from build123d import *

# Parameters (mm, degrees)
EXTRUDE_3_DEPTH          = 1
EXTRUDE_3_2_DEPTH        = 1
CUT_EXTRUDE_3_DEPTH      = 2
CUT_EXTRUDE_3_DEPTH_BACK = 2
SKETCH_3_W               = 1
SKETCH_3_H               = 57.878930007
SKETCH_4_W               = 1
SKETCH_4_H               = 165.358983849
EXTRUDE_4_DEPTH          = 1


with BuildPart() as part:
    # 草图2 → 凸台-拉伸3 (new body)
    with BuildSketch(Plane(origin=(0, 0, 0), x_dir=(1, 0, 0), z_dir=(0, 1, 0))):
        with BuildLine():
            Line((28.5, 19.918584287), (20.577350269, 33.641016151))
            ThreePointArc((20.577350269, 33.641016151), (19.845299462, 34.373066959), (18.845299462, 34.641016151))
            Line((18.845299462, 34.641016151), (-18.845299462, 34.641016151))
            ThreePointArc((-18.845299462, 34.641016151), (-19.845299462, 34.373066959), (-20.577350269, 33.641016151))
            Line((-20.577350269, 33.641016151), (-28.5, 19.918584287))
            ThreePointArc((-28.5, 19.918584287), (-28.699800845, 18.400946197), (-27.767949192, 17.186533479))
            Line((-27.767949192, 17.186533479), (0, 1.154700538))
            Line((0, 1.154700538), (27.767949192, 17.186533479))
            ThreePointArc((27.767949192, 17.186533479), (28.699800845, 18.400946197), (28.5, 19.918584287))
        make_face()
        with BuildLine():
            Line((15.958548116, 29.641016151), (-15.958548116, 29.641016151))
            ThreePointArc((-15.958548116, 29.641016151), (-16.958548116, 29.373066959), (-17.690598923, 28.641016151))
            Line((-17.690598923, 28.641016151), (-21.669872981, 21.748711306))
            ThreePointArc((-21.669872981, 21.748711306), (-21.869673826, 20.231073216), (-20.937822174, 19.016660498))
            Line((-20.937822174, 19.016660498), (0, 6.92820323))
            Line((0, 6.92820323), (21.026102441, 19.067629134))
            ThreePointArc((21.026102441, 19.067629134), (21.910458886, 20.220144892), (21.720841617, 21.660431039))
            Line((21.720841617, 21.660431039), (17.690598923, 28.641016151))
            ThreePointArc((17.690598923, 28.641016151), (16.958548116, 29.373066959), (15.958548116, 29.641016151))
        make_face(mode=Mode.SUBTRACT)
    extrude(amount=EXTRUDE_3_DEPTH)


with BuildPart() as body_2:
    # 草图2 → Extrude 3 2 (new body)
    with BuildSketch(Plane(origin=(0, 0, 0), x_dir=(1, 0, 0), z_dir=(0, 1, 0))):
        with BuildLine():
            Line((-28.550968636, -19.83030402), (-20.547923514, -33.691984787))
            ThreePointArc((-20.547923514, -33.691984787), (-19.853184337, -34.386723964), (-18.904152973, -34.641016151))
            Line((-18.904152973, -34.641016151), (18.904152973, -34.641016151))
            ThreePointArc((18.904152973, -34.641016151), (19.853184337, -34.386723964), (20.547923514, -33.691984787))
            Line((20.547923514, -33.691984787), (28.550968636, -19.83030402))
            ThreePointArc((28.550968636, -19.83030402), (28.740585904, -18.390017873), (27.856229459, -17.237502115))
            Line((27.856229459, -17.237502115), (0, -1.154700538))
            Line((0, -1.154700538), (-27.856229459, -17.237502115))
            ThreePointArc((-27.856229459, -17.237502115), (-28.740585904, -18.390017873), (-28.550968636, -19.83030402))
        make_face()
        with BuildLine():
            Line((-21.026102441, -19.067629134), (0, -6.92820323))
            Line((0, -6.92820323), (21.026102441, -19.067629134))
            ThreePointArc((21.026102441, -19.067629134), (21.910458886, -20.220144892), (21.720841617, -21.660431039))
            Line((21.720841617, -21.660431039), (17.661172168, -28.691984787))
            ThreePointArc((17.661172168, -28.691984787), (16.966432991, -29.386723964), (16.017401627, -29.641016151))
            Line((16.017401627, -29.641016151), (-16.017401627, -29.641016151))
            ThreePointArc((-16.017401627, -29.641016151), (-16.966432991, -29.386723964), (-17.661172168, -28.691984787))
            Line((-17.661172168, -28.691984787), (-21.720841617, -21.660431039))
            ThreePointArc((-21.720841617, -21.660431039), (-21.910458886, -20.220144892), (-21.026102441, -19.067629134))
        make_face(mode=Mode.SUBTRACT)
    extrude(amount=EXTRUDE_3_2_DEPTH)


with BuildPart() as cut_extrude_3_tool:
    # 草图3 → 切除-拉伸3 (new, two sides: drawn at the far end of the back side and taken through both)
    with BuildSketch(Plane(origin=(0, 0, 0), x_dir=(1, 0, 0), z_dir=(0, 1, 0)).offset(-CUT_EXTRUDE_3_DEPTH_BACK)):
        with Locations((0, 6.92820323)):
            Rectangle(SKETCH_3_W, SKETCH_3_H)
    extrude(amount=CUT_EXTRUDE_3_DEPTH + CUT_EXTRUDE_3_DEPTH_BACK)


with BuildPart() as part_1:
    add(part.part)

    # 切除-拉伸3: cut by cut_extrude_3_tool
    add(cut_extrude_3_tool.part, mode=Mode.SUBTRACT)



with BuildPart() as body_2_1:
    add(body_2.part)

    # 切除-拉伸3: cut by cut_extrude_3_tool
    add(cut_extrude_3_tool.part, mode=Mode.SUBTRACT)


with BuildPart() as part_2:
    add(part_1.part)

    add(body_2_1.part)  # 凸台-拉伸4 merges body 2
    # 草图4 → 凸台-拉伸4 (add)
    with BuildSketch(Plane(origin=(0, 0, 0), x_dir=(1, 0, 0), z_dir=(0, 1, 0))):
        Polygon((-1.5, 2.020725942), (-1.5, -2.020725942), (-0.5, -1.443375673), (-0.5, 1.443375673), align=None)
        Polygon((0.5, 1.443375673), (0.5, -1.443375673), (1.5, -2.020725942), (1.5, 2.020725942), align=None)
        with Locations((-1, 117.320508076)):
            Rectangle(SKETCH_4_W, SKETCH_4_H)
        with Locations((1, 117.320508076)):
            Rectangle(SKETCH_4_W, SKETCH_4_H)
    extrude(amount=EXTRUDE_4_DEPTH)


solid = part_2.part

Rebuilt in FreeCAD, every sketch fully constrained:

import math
import FreeCAD as App
import Part
import Sketcher
Q = App.Units.Quantity

doc = App.newDocument("Part")
params = doc.addObject("Spreadsheet::Sheet", "Params")
for row, (alias, value) in enumerate([
    ("sketch1_radius", "2 mm"),
    ("pad1_length", "1 mm"),
    ("pad2_length", "1 mm"),
    ("sketch3_width", "1 mm"),
    ("pad3_length", "2 mm"),
    ("pad3_length2", "2 mm"),
    ("sketch4_width", "1 mm"),
    ("pad4_length", "1 mm"),
], start=1):
    params.set(f"A{row}", alias)
    params.set(f"B{row}", "=" + value)
    params.setAlias(f"B{row}", alias)

body = doc.addObject("PartDesign::Body", "Body")

sketch1 = body.newObject("Sketcher::SketchObject", "Sketch")
sketch1.AttachmentSupport = (doc.getObject("XZ_Plane"), [""])
sketch1.MapMode = "FlatFace"
sketch1.addGeometry(Part.LineSegment(App.Vector(28.5, -19.9, 0), App.Vector(20.6, -33.6, 0)), False)
sketch1.addGeometry(Part.ArcOfCircle(Part.Circle(App.Vector(18.8, -32.6, 0), App.Vector(0, 0, 1), 2), math.radians(-90), math.radians(-30)), False)
sketch1.addGeometry(Part.LineSegment(App.Vector(18.8, -34.6, 0), App.Vector(-18.8, -34.6, 0)), False)
sketch1.addGeometry(Part.ArcOfCircle(Part.Circle(App.Vector(-18.8, -32.6, 0), App.Vector(0, 0, 1), 2), math.radians(-150), math.radians(-90)), False)
sketch1.addGeometry(Part.LineSegment(App.Vector(-20.6, -33.6, 0), App.Vector(-28.5, -19.9, 0)), False)
sketch1.addGeometry(Part.ArcOfCircle(Part.Circle(App.Vector(-26.8, -18.9, 0), App.Vector(0, 0, 1), 2), math.radians(120), math.radians(210)), False)
sketch1.addGeometry(Part.LineSegment(App.Vector(-27.8, -17.2, 0), App.Vector(0, -1.2, 0)), False)
sketch1.addGeometry(Part.LineSegment(App.Vector(0, -1.2, 0), App.Vector(27.8, -17.2, 0)), False)
sketch1.addGeometry(Part.ArcOfCircle(Part.Circle(App.Vector(26.8, -18.9, 0), App.Vector(0, 0, 1), 2), math.radians(-30), math.radians(60)), False)
sketch1.addGeometry(Part.LineSegment(App.Vector(-16, -29.6, 0), App.Vector(16, -29.6, 0)), False)
sketch1.addGeometry(Part.ArcOfCircle(Part.Circle(App.Vector(16, -27.6, 0), App.Vector(0, 0, 1), 2), math.radians(-90), math.radians(-30)), False)
sketch1.addGeometry(Part.LineSegment(App.Vector(17.7, -28.6, 0), App.Vector(21.7, -21.7, 0)), False)
sketch1.addGeometry(Part.ArcOfCircle(Part.Circle(App.Vector(20.1, -20.7, 0), App.Vector(0, 0, 1), 1.9), math.radians(-30), math.radians(60)), False)
sketch1.addGeometry(Part.LineSegment(App.Vector(21, -19.1, 0), App.Vector(0, -6.9, 0)), False)
sketch1.addGeometry(Part.LineSegment(App.Vector(0, -6.9, 0), App.Vector(-20.9, -19, 0)), False)
sketch1.addGeometry(Part.ArcOfCircle(Part.Circle(App.Vector(-19.9, -20.7, 0), App.Vector(0, 0, 1), 2), math.radians(120), math.radians(210)), False)
sketch1.addGeometry(Part.LineSegment(App.Vector(-21.7, -21.7, 0), App.Vector(-17.7, -28.6, 0)), False)
sketch1.addGeometry(Part.ArcOfCircle(Part.Circle(App.Vector(-16, -27.6, 0), App.Vector(0, 0, 1), 2), math.radians(-150), math.radians(-90)), False)
sketch1.addConstraint(Sketcher.Constraint("Tangent", 0, 2, 1, 2))
sketch1.addConstraint(Sketcher.Constraint("Tangent", 1, 1, 2, 1))
sketch1.addConstraint(Sketcher.Constraint("Tangent", 2, 2, 3, 2))
sketch1.addConstraint(Sketcher.Constraint("Tangent", 3, 1, 4, 1))
sketch1.addConstraint(Sketcher.Constraint("Tangent", 4, 2, 5, 2))
sketch1.addConstraint(Sketcher.Constraint("Tangent", 5, 1, 6, 1))
sketch1.addConstraint(Sketcher.Constraint("Coincident", 6, 2, 7, 1))
sketch1.addConstraint(Sketcher.Constraint("Tangent", 7, 2, 8, 2))
sketch1.addConstraint(Sketcher.Constraint("Tangent", 8, 1, 0, 1))
sketch1.addConstraint(Sketcher.Constraint("Tangent", 9, 2, 10, 1))
sketch1.addConstraint(Sketcher.Constraint("Tangent", 10, 2, 11, 1))
sketch1.addConstraint(Sketcher.Constraint("Tangent", 11, 2, 12, 1))
sketch1.addConstraint(Sketcher.Constraint("Tangent", 12, 2, 13, 1))
sketch1.addConstraint(Sketcher.Constraint("Coincident", 13, 2, 14, 1))
sketch1.addConstraint(Sketcher.Constraint("Tangent", 14, 2, 15, 1))
sketch1.addConstraint(Sketcher.Constraint("Tangent", 15, 2, 16, 1))
sketch1.addConstraint(Sketcher.Constraint("Tangent", 16, 2, 17, 1))
sketch1.addConstraint(Sketcher.Constraint("Tangent", 17, 2, 9, 1))
sketch1.addConstraint(Sketcher.Constraint("Horizontal", 2))
sketch1.addConstraint(Sketcher.Constraint("Horizontal", 9))
sketch1.addConstraint(Sketcher.Constraint("Equal", 1, 3))
sketch1.addConstraint(Sketcher.Constraint("Equal", 3, 5))
sketch1.addConstraint(Sketcher.Constraint("Equal", 5, 8))
sketch1.addConstraint(Sketcher.Constraint("Equal", 8, 10))
sketch1.addConstraint(Sketcher.Constraint("Equal", 10, 15))
sketch1.addConstraint(Sketcher.Constraint("Equal", 15, 17))
sketch1.addConstraint(Sketcher.Constraint("Symmetric", 5, 3, 8, 3, -2))
sketch1.addConstraint(Sketcher.Constraint("Symmetric", 10, 2, 16, 2, -2))
sketch1.addConstraint(Sketcher.Constraint("PointOnObject", 6, 2, -2))
sketch1.addConstraint(Sketcher.Constraint("PointOnObject", 13, 2, -2))
sketch1.addConstraint(Sketcher.Constraint("Perpendicular", 4, 6))
sketch1.addConstraint(Sketcher.Constraint("Perpendicular", 0, 7))
sketch1.addConstraint(Sketcher.Constraint("Perpendicular", 7, 11))
sketch1.addConstraint(Sketcher.Constraint("Perpendicular", 11, 13))
sketch1.addConstraint(Sketcher.Constraint("Parallel", 6, 14))
sketch1.addConstraint(Sketcher.Constraint("Radius", 1, 2.0))
sketch1.addConstraint(Sketcher.Constraint("Angle", 0, Q("-120 deg")))
sketch1.addConstraint(Sketcher.Constraint("DistanceY", 1, 3, 10, 3, 5.0))
sketch1.addConstraint(Sketcher.Constraint("DistanceX", 4, 2, -1, 1, 28.5))
sketch1.addConstraint(Sketcher.Constraint("DistanceX", 2, 2, 2, 1, 37.690599))
sketch1.addConstraint(Sketcher.Constraint("Radius", 12, 1.898063))
sketch1.addConstraint(Sketcher.Constraint("DistanceY", 12, 3, -1, 1, 20.7114))
sketch1.addConstraint(Sketcher.Constraint("DistanceY", 6, 2, -1, 1, 1.154701))
sketch1.addConstraint(Sketcher.Constraint("DistanceX", -1, 1, 10, 2, 17.690599))
sketch1.setExpression("Constraints[35]", "Params.sketch1_radius")
pad1 = body.newObject("PartDesign::Pad", "Pad")
pad1.Profile = sketch1
pad1.setExpression("Length", "Params.pad1_length")
pad1.Reversed = True
body2 = doc.addObject("PartDesign::Body", "Body001")

sketch2 = body2.newObject("Sketcher::SketchObject", "Sketch001")
sketch2.AttachmentSupport = (doc.getObject("XZ_Plane001"), [""])
sketch2.MapMode = "FlatFace"
sketch2.addGeometry(Part.LineSegment(App.Vector(-28.6, 19.8, 0), App.Vector(-20.5, 33.7, 0)), False)
sketch2.addGeometry(Part.ArcOfCircle(Part.Circle(App.Vector(-18.9, 32.7, 0), App.Vector(0, 0, 1), 1.9), math.radians(90), math.radians(150)), False)
sketch2.addGeometry(Part.LineSegment(App.Vector(-18.9, 34.6, 0), App.Vector(18.9, 34.6, 0)), False)
sketch2.addGeometry(Part.ArcOfCircle(Part.Circle(App.Vector(18.9, 32.7, 0), App.Vector(0, 0, 1), 1.9), math.radians(30), math.radians(90)), False)
sketch2.addGeometry(Part.LineSegment(App.Vector(20.5, 33.7, 0), App.Vector(28.6, 19.8, 0)), False)
sketch2.addGeometry(Part.ArcOfCircle(Part.Circle(App.Vector(26.9, 18.9, 0), App.Vector(0, 0, 1), 1.9), math.radians(-60), math.radians(30)), False)
sketch2.addGeometry(Part.LineSegment(App.Vector(27.9, 17.2, 0), App.Vector(0, 1.2, 0)), False)
sketch2.addGeometry(Part.LineSegment(App.Vector(0, 1.2, 0), App.Vector(-27.9, 17.2, 0)), False)
sketch2.addGeometry(Part.ArcOfCircle(Part.Circle(App.Vector(-26.9, 18.9, 0), App.Vector(0, 0, 1), 1.9), math.radians(150), math.radians(240)), False)
sketch2.addGeometry(Part.ArcOfCircle(Part.Circle(App.Vector(-20.1, 20.7, 0), App.Vector(0, 0, 1), 1.9), math.radians(150), math.radians(240)), False)
sketch2.addGeometry(Part.LineSegment(App.Vector(-21, 19.1, 0), App.Vector(0, 6.9, 0)), False)
sketch2.addGeometry(Part.LineSegment(App.Vector(0, 6.9, 0), App.Vector(21, 19.1, 0)), False)
sketch2.addGeometry(Part.ArcOfCircle(Part.Circle(App.Vector(20.1, 20.7, 0), App.Vector(0, 0, 1), 1.9), math.radians(-60), math.radians(30)), False)
sketch2.addGeometry(Part.LineSegment(App.Vector(21.7, 21.7, 0), App.Vector(17.7, 28.7, 0)), False)
sketch2.addGeometry(Part.ArcOfCircle(Part.Circle(App.Vector(16, 27.7, 0), App.Vector(0, 0, 1), 1.9), math.radians(30), math.radians(90)), False)
sketch2.addGeometry(Part.LineSegment(App.Vector(16, 29.6, 0), App.Vector(-16, 29.6, 0)), False)
sketch2.addGeometry(Part.ArcOfCircle(Part.Circle(App.Vector(-16, 27.7, 0), App.Vector(0, 0, 1), 1.9), math.radians(90), math.radians(150)), False)
sketch2.addGeometry(Part.LineSegment(App.Vector(-17.7, 28.7, 0), App.Vector(-21.7, 21.7, 0)), False)
sketch2.addConstraint(Sketcher.Constraint("Tangent", 0, 2, 1, 2))
sketch2.addConstraint(Sketcher.Constraint("Tangent", 1, 1, 2, 1))
sketch2.addConstraint(Sketcher.Constraint("Tangent", 2, 2, 3, 2))
sketch2.addConstraint(Sketcher.Constraint("Tangent", 3, 1, 4, 1))
sketch2.addConstraint(Sketcher.Constraint("Tangent", 4, 2, 5, 2))
sketch2.addConstraint(Sketcher.Constraint("Tangent", 5, 1, 6, 1))
sketch2.addConstraint(Sketcher.Constraint("Coincident", 6, 2, 7, 1))
sketch2.addConstraint(Sketcher.Constraint("Tangent", 7, 2, 8, 2))
sketch2.addConstraint(Sketcher.Constraint("Tangent", 8, 1, 0, 1))
sketch2.addConstraint(Sketcher.Constraint("Tangent", 9, 2, 10, 1))
sketch2.addConstraint(Sketcher.Constraint("Coincident", 10, 2, 11, 1))
sketch2.addConstraint(Sketcher.Constraint("Tangent", 11, 2, 12, 1))
sketch2.addConstraint(Sketcher.Constraint("Tangent", 12, 2, 13, 1))
sketch2.addConstraint(Sketcher.Constraint("Tangent", 13, 2, 14, 1))
sketch2.addConstraint(Sketcher.Constraint("Tangent", 14, 2, 15, 1))
sketch2.addConstraint(Sketcher.Constraint("Tangent", 15, 2, 16, 1))
sketch2.addConstraint(Sketcher.Constraint("Tangent", 16, 2, 17, 1))
sketch2.addConstraint(Sketcher.Constraint("Tangent", 17, 2, 9, 1))
sketch2.addConstraint(Sketcher.Constraint("Horizontal", 2))
sketch2.addConstraint(Sketcher.Constraint("Horizontal", 15))
sketch2.addConstraint(Sketcher.Constraint("Equal", 1, 3))
sketch2.addConstraint(Sketcher.Constraint("Equal", 3, 5))
sketch2.addConstraint(Sketcher.Constraint("Equal", 5, 8))
sketch2.addConstraint(Sketcher.Constraint("Equal", 8, 9))
sketch2.addConstraint(Sketcher.Constraint("Equal", 9, 12))
sketch2.addConstraint(Sketcher.Constraint("Equal", 12, 14))
sketch2.addConstraint(Sketcher.Constraint("Equal", 14, 16))
sketch2.addConstraint(Sketcher.Constraint("Symmetric", 5, 3, 8, 3, -2))
sketch2.addConstraint(Sketcher.Constraint("Symmetric", 9, 3, 12, 3, -2))
sketch2.addConstraint(Sketcher.Constraint("PointOnObject", 6, 2, -2))
sketch2.addConstraint(Sketcher.Constraint("PointOnObject", 10, 2, -2))
sketch2.addConstraint(Sketcher.Constraint("Perpendicular", 4, 6))
sketch2.addConstraint(Sketcher.Constraint("Perpendicular", 0, 7))
sketch2.addConstraint(Sketcher.Constraint("Parallel", 7, 10))
sketch2.addConstraint(Sketcher.Constraint("Perpendicular", 11, 13))
sketch2.addConstraint(Sketcher.Constraint("Perpendicular", 10, 17))
sketch2.addConstraint(Sketcher.Constraint("Angle", 0, Q("60 deg")))
sketch2.addConstraint(Sketcher.Constraint("DistanceY", 14, 3, 3, 3, 5.0))
sketch2.addConstraint(Sketcher.Constraint("Radius", 1, 1.898063))
sketch2.addConstraint(Sketcher.Constraint("DistanceX", -1, 1, 5, 3, 26.907198))
sketch2.addConstraint(Sketcher.Constraint("DistanceY", -1, 1, 9, 3, 20.7114))
sketch2.addConstraint(Sketcher.Constraint("DistanceX", -1, 1, 14, 3, 16.017402))
sketch2.addConstraint(Sketcher.Constraint("DistanceY", -1, 1, 6, 2, 1.154701))
sketch2.addConstraint(Sketcher.Constraint("DistanceX", 9, 2, 16, 3, 5.008701))
pad2 = body2.newObject("PartDesign::Pad", "Pad001")
pad2.Profile = sketch2
pad2.setExpression("Length", "Params.pad2_length")
pad2.Reversed = True
body3 = doc.addObject("PartDesign::Body", "Body002")

sketch3 = body3.newObject("Sketcher::SketchObject", "Sketch002")
sketch3.AttachmentSupport = (doc.getObject("XZ_Plane002"), [""])
sketch3.MapMode = "FlatFace"
sketch3.addGeometry(Part.LineSegment(App.Vector(-0.5, -35.9, 0), App.Vector(-0.5, 22, 0)), False)
sketch3.addGeometry(Part.LineSegment(App.Vector(-0.5, 22, 0), App.Vector(0.5, 22, 0)), False)
sketch3.addGeometry(Part.LineSegment(App.Vector(0.5, 22, 0), App.Vector(0.5, -35.9, 0)), False)
sketch3.addGeometry(Part.LineSegment(App.Vector(0.5, -35.9, 0), App.Vector(-0.5, -35.9, 0)), False)
sketch3.addConstraint(Sketcher.Constraint("Coincident", 0, 2, 1, 1))
sketch3.addConstraint(Sketcher.Constraint("Coincident", 1, 2, 2, 1))
sketch3.addConstraint(Sketcher.Constraint("Coincident", 2, 2, 3, 1))
sketch3.addConstraint(Sketcher.Constraint("Coincident", 3, 2, 0, 1))
sketch3.addConstraint(Sketcher.Constraint("Vertical", 0))
sketch3.addConstraint(Sketcher.Constraint("Horizontal", 1))
sketch3.addConstraint(Sketcher.Constraint("Vertical", 2))
sketch3.addConstraint(Sketcher.Constraint("Horizontal", 3))
sketch3.addConstraint(Sketcher.Constraint("DistanceX", 1, 1, 1, 2, 1.0))
sketch3.addConstraint(Sketcher.Constraint("DistanceX", 0, 2, -1, 1, 0.5))
sketch3.addConstraint(Sketcher.Constraint("DistanceY", 0, 1, 0, 2, 57.87893))
sketch3.addConstraint(Sketcher.Constraint("DistanceY", -1, 1, 0, 2, 22.011262))
sketch3.setExpression("Constraints[8]", "Params.sketch3_width")
pad3 = body3.newObject("PartDesign::Pad", "Pad002")
pad3.Profile = sketch3
pad3.Type = "TwoLengths"
pad3.setExpression("Length", "Params.pad3_length")
pad3.setExpression("Length2", "Params.pad3_length2")
pad3.Reversed = True
body.AllowCompound = True
doc.recompute()

body4 = doc.addObject("PartDesign::Body", "Body003")
body4.BaseFeature = body3
boolean = body.newObject("PartDesign::Boolean", "Boolean")
boolean.Type = "Cut"
boolean.addObjects([body4])
doc.recompute()

boolean2 = body2.newObject("PartDesign::Boolean", "Boolean001")
boolean2.Type = "Cut"
boolean2.addObjects([body3])
body.AllowCompound = True
doc.recompute()

boolean3 = body.newObject("PartDesign::Boolean", "Boolean002")
boolean3.Type = "Fuse"
boolean3.addObjects([body2])

sketch4 = body.newObject("Sketcher::SketchObject", "Sketch003")
sketch4.AttachmentSupport = (doc.getObject("XZ_Plane"), [""])
sketch4.MapMode = "FlatFace"
sketch4.addGeometry(Part.LineSegment(App.Vector(-1.5, -2, 0), App.Vector(-1.5, 2, 0)), False)
sketch4.addGeometry(Part.LineSegment(App.Vector(-1.5, 2, 0), App.Vector(-0.5, 1.4, 0)), False)
sketch4.addGeometry(Part.LineSegment(App.Vector(-0.5, 1.4, 0), App.Vector(-0.5, -1.4, 0)), False)
sketch4.addGeometry(Part.LineSegment(App.Vector(-0.5, -1.4, 0), App.Vector(-1.5, -2, 0)), False)
sketch4.addGeometry(Part.LineSegment(App.Vector(0.5, -1.4, 0), App.Vector(0.5, 1.4, 0)), False)
sketch4.addGeometry(Part.LineSegment(App.Vector(0.5, 1.4, 0), App.Vector(1.5, 2, 0)), False)
sketch4.addGeometry(Part.LineSegment(App.Vector(1.5, 2, 0), App.Vector(1.5, -2, 0)), False)
sketch4.addGeometry(Part.LineSegment(App.Vector(1.5, -2, 0), App.Vector(0.5, -1.4, 0)), False)
sketch4.addGeometry(Part.LineSegment(App.Vector(-1.5, -200, 0), App.Vector(-1.5, -34.6, 0)), False)
sketch4.addGeometry(Part.LineSegment(App.Vector(-1.5, -34.6, 0), App.Vector(-0.5, -34.6, 0)), False)
sketch4.addGeometry(Part.LineSegment(App.Vector(-0.5, -34.6, 0), App.Vector(-0.5, -200, 0)), False)
sketch4.addGeometry(Part.LineSegment(App.Vector(-0.5, -200, 0), App.Vector(-1.5, -200, 0)), False)
sketch4.addGeometry(Part.LineSegment(App.Vector(0.5, -200, 0), App.Vector(0.5, -34.6, 0)), False)
sketch4.addGeometry(Part.LineSegment(App.Vector(0.5, -34.6, 0), App.Vector(1.5, -34.6, 0)), False)
sketch4.addGeometry(Part.LineSegment(App.Vector(1.5, -34.6, 0), App.Vector(1.5, -200, 0)), False)
sketch4.addGeometry(Part.LineSegment(App.Vector(1.5, -200, 0), App.Vector(0.5, -200, 0)), False)
sketch4.addConstraint(Sketcher.Constraint("Coincident", 0, 2, 1, 1))
sketch4.addConstraint(Sketcher.Constraint("Coincident", 1, 2, 2, 1))
sketch4.addConstraint(Sketcher.Constraint("Coincident", 2, 2, 3, 1))
sketch4.addConstraint(Sketcher.Constraint("Coincident", 3, 2, 0, 1))
sketch4.addConstraint(Sketcher.Constraint("Coincident", 4, 2, 5, 1))
sketch4.addConstraint(Sketcher.Constraint("Coincident", 5, 2, 6, 1))
sketch4.addConstraint(Sketcher.Constraint("Coincident", 6, 2, 7, 1))
sketch4.addConstraint(Sketcher.Constraint("Coincident", 7, 2, 4, 1))
sketch4.addConstraint(Sketcher.Constraint("Coincident", 8, 2, 9, 1))
sketch4.addConstraint(Sketcher.Constraint("Coincident", 9, 2, 10, 1))
sketch4.addConstraint(Sketcher.Constraint("Coincident", 10, 2, 11, 1))
sketch4.addConstraint(Sketcher.Constraint("Coincident", 11, 2, 8, 1))
sketch4.addConstraint(Sketcher.Constraint("Coincident", 12, 2, 13, 1))
sketch4.addConstraint(Sketcher.Constraint("Coincident", 13, 2, 14, 1))
sketch4.addConstraint(Sketcher.Constraint("Coincident", 14, 2, 15, 1))
sketch4.addConstraint(Sketcher.Constraint("Coincident", 15, 2, 12, 1))
sketch4.addConstraint(Sketcher.Constraint("Vertical", 0))
sketch4.addConstraint(Sketcher.Constraint("Vertical", 2))
sketch4.addConstraint(Sketcher.Constraint("Vertical", 4))
sketch4.addConstraint(Sketcher.Constraint("Vertical", 6))
sketch4.addConstraint(Sketcher.Constraint("Vertical", 8))
sketch4.addConstraint(Sketcher.Constraint("Horizontal", 9))
sketch4.addConstraint(Sketcher.Constraint("Vertical", 10))
sketch4.addConstraint(Sketcher.Constraint("Horizontal", 11))
sketch4.addConstraint(Sketcher.Constraint("Vertical", 12))
sketch4.addConstraint(Sketcher.Constraint("Horizontal", 13))
sketch4.addConstraint(Sketcher.Constraint("Vertical", 14))
sketch4.addConstraint(Sketcher.Constraint("Horizontal", 15))
sketch4.addConstraint(Sketcher.Constraint("Symmetric", 2, 2, 4, 2, -1, 1))
sketch4.addConstraint(Sketcher.Constraint("Symmetric", 3, 2, 5, 2, -1, 1))
sketch4.addConstraint(Sketcher.Constraint("Symmetric", 9, 2, 12, 2, -2))
sketch4.addConstraint(Sketcher.Constraint("Symmetric", 11, 2, 14, 2, -2))
sketch4.addConstraint(Sketcher.Constraint("Parallel", 1, 7))
sketch4.addConstraint(Sketcher.Constraint("Horizontal", 1, 2, 4, 2))
sketch4.addConstraint(Sketcher.Constraint("Horizontal", 0, 2, 5, 2))
sketch4.addConstraint(Sketcher.Constraint("Horizontal", 3, 2, 6, 2))
sketch4.addConstraint(Sketcher.Constraint("Vertical", 3, 2, 8, 2))
sketch4.addConstraint(Sketcher.Constraint("Vertical", 2, 2, 9, 2))
sketch4.addConstraint(Sketcher.Constraint("DistanceX", 9, 1, 9, 2, 1.0))
sketch4.addConstraint(Sketcher.Constraint("Angle", 1, Q("-30 deg")))
sketch4.addConstraint(Sketcher.Constraint("DistanceY", 10, 2, -1, 1, 200.0))
sketch4.addConstraint(Sketcher.Constraint("DistanceX", 1, 2, 4, 2, 1.0))
sketch4.addConstraint(Sketcher.Constraint("DistanceY", 0, 1, 0, 2, 4.041452))
sketch4.addConstraint(Sketcher.Constraint("DistanceY", 8, 1, 8, 2, 165.358984))
sketch4.setExpression("Constraints[38]", "Params.sketch4_width")
pad4 = body.newObject("PartDesign::Pad", "Pad003")
pad4.Profile = sketch4
pad4.setExpression("Length", "Params.pad4_length")
pad4.Reversed = True

doc.recompute()
